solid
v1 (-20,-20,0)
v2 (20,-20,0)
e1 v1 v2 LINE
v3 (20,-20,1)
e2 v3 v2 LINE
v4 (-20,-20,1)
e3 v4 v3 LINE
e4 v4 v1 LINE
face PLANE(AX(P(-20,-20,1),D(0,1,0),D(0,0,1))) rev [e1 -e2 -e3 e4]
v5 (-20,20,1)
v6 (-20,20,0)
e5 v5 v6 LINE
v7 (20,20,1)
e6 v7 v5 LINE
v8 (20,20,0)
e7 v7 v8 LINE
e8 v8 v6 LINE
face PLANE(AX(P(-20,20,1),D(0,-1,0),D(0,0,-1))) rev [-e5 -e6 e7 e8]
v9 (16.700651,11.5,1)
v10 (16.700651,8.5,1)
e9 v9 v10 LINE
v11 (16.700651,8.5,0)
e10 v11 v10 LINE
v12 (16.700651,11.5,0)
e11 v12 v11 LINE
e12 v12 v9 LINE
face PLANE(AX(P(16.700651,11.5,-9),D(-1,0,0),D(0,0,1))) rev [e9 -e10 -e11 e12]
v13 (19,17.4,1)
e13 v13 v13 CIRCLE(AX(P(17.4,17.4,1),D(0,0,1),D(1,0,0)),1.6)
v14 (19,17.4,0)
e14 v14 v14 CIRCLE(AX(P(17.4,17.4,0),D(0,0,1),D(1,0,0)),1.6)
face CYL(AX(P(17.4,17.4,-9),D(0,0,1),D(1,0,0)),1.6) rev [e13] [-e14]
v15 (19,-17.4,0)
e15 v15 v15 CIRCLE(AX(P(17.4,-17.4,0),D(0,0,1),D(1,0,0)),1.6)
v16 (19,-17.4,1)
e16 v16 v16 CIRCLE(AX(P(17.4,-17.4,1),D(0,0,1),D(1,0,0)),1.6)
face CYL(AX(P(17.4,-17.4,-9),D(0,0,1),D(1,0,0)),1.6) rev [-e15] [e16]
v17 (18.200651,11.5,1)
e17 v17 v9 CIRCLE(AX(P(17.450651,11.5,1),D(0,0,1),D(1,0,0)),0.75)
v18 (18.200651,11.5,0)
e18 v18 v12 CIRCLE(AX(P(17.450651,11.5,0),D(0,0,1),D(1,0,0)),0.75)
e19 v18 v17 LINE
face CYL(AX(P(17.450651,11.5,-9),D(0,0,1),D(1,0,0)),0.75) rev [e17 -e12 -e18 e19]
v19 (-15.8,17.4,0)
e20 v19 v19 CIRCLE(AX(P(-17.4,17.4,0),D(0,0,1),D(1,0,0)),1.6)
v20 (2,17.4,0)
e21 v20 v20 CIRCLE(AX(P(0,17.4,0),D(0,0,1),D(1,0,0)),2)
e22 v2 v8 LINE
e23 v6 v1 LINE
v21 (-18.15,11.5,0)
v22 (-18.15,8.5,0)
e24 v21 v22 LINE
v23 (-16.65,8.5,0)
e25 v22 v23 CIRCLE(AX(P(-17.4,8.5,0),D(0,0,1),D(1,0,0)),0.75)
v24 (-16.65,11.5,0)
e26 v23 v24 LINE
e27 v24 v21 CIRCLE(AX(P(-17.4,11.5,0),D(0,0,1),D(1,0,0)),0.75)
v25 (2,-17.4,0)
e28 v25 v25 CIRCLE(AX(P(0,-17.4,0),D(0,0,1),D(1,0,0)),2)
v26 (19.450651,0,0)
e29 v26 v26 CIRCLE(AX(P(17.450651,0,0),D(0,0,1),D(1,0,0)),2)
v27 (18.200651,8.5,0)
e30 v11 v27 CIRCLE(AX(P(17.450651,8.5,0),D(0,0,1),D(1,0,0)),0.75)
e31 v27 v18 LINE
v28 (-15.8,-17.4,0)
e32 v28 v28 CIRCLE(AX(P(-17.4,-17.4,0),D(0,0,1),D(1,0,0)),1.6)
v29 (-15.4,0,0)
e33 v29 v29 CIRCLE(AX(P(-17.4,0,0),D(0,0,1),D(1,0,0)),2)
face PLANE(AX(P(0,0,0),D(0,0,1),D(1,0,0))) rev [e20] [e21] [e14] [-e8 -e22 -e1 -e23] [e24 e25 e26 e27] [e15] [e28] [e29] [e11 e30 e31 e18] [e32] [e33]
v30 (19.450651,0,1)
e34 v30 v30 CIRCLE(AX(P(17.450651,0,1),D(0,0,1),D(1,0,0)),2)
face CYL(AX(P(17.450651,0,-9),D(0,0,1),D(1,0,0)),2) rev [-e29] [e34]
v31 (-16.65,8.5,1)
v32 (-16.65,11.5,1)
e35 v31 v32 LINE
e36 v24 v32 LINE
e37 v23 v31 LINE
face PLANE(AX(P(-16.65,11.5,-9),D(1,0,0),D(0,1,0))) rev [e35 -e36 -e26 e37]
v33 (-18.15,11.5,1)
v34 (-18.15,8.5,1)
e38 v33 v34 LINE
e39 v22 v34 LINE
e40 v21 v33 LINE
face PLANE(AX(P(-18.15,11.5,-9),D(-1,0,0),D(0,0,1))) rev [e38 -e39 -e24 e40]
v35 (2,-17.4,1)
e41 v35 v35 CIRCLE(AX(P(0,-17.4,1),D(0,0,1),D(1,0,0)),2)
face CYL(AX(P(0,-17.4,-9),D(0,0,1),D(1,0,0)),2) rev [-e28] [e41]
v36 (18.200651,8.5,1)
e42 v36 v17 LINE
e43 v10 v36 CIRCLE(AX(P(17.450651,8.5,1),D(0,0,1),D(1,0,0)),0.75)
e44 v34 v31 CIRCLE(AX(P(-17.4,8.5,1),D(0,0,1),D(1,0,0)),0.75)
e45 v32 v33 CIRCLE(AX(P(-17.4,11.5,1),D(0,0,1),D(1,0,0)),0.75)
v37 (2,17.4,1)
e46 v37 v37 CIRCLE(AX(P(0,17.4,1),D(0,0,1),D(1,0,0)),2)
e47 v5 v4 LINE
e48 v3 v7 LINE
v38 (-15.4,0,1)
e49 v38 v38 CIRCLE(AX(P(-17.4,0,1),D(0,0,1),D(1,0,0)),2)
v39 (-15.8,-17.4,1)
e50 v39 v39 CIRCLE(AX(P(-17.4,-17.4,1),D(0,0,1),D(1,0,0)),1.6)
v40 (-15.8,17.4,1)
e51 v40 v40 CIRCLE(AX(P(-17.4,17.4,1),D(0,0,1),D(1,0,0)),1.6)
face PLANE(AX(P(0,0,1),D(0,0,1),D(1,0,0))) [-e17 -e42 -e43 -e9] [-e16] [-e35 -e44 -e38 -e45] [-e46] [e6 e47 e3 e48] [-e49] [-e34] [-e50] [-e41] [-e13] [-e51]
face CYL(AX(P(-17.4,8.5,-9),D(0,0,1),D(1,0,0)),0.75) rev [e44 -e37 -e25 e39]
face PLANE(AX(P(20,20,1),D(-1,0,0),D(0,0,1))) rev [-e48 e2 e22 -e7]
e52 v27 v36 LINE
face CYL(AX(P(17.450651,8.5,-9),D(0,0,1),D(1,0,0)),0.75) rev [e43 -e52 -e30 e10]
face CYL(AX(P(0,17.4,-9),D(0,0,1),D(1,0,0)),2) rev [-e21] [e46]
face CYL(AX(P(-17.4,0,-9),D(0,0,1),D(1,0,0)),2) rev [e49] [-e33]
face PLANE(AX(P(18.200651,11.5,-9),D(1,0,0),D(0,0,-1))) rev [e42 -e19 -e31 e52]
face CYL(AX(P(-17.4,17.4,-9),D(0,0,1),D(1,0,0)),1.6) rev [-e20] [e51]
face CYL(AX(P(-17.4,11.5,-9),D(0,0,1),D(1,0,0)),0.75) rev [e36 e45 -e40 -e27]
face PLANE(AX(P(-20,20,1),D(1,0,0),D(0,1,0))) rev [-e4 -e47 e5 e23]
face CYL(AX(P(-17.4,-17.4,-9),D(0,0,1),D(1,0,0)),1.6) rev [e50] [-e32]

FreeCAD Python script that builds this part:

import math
import FreeCAD as App
import Part
import Sketcher
from FreeCAD import Vector

doc = App.newDocument("Part")
body = doc.addObject("PartDesign::Body", "Body")

# Sketch on XY plane
sketch1 = body.newObject("Sketcher::SketchObject", "Sketch")
sketch1.AttachmentSupport = (doc.getObject("XY_Plane"), [""])
sketch1.MapMode = "FlatFace"
sketch1.addGeometry(Part.LineSegment(Vector(-20, 20, 0), Vector(-20, -20, 0)), False)
sketch1.addGeometry(Part.LineSegment(Vector(-20, -20, 0), Vector(20, -20, 0)), False)
sketch1.addGeometry(Part.LineSegment(Vector(20, -20, 0), Vector(20, 20, 0)), False)
sketch1.addGeometry(Part.LineSegment(Vector(20, 20, 0), Vector(-20, 20, 0)), False)
sketch1.addConstraint(Sketcher.Constraint("Coincident", 0, 2, 1, 1))
sketch1.addConstraint(Sketcher.Constraint("Coincident", 1, 2, 2, 1))
sketch1.addConstraint(Sketcher.Constraint("Coincident", 2, 2, 3, 1))
sketch1.addConstraint(Sketcher.Constraint("Coincident", 3, 2, 0, 1))
sketch1.addConstraint(Sketcher.Constraint("Vertical", 0))
sketch1.addConstraint(Sketcher.Constraint("Horizontal", 1))
sketch1.addConstraint(Sketcher.Constraint("Vertical", 2))
sketch1.addConstraint(Sketcher.Constraint("Horizontal", 3))
sketch1.addConstraint(Sketcher.Constraint("Symmetric", 0, 2, 2, 2, -1, 1))
sketch1.addConstraint(Sketcher.Constraint("Equal", 3, 0))
sketch1.addConstraint(Sketcher.Constraint("DistanceX", 1, 1, 1, 2, 40.0))
pad1 = body.newObject("PartDesign::Pad", "Pad")
pad1.Profile = sketch1
pad1.Length = 1

# Sketch on XY plane
sketch2 = body.newObject("Sketcher::SketchObject", "Sketch001")
sketch2.AttachmentSupport = (doc.getObject("XY_Plane"), [""])
sketch2.MapMode = "FlatFace"
sketch2.AttachmentOffset = App.Placement(Vector(0, 0, 1), App.Rotation())
sketch2.addGeometry(Part.Circle(Vector(-17.4, -17.4, 0), Vector(0, 0, 1), 1.6), False)
sketch2.addGeometry(Part.Circle(Vector(17.4, -17.4, 0), Vector(0, 0, 1), 1.6), False)
sketch2.addGeometry(Part.Circle(Vector(17.4, 17.4, 0), Vector(0, 0, 1), 1.6), False)
sketch2.addGeometry(Part.Circle(Vector(-17.4, 17.4, 0), Vector(0, 0, 1), 1.6), False)
sketch2.addGeometry(Part.Circle(Vector(0, 17.4, 0), Vector(0, 0, 1), 2), False)
sketch2.addGeometry(Part.Circle(Vector(17.5, 0, 0), Vector(0, 0, 1), 2), False)
sketch2.addGeometry(Part.Circle(Vector(0, -17.4, 0), Vector(0, 0, 1), 2), False)
sketch2.addGeometry(Part.Circle(Vector(-17.4, 0, 0), Vector(0, 0, 1), 2), False)
sketch2.addGeometry(Part.LineSegment(Vector(-16.6, 8.5, 0), Vector(-16.6, 11.5, 0)), False)
sketch2.addGeometry(Part.ArcOfCircle(Part.Circle(Vector(-17.4, 11.5, 0), Vector(0, 0, 1), 0.8), math.radians(0), math.radians(180)), False)
sketch2.addGeometry(Part.LineSegment(Vector(-18.1, 11.5, 0), Vector(-18.1, 8.5, 0)), False)
sketch2.addGeometry(Part.ArcOfCircle(Part.Circle(Vector(-17.4, 8.5, 0), Vector(0, 0, 1), 0.8), math.radians(180), math.radians(360)), False)
sketch2.addGeometry(Part.LineSegment(Vector(18.2, 8.5, 0), Vector(18.2, 11.5, 0)), False)
sketch2.addGeometry(Part.ArcOfCircle(Part.Circle(Vector(17.5, 11.5, 0), Vector(0, 0, 1), 0.8), math.radians(0), math.radians(180)), False)
sketch2.addGeometry(Part.LineSegment(Vector(16.7, 11.5, 0), Vector(16.7, 8.5, 0)), False)
sketch2.addGeometry(Part.ArcOfCircle(Part.Circle(Vector(17.5, 8.5, 0), Vector(0, 0, 1), 0.8), math.radians(180), math.radians(360)), False)
sketch2.addConstraint(Sketcher.Constraint("Tangent", 8, 2, 9, 1))
sketch2.addConstraint(Sketcher.Constraint("Tangent", 9, 2, 10, 1))
sketch2.addConstraint(Sketcher.Constraint("Tangent", 10, 2, 11, 1))
sketch2.addConstraint(Sketcher.Constraint("Tangent", 11, 2, 8, 1))
sketch2.addConstraint(Sketcher.Constraint("Tangent", 12, 2, 13, 1))
sketch2.addConstraint(Sketcher.Constraint("Tangent", 13, 2, 14, 1))
sketch2.addConstraint(Sketcher.Constraint("Tangent", 14, 2, 15, 1))
sketch2.addConstraint(Sketcher.Constraint("Tangent", 15, 2, 12, 1))
sketch2.addConstraint(Sketcher.Constraint("Vertical", 8))
sketch2.addConstraint(Sketcher.Constraint("Vertical", 10))
sketch2.addConstraint(Sketcher.Constraint("Vertical", 12))
sketch2.addConstraint(Sketcher.Constraint("Vertical", 14))
sketch2.addConstraint(Sketcher.Constraint("Equal", 0, 1))
sketch2.addConstraint(Sketcher.Constraint("Equal", 1, 2))
sketch2.addConstraint(Sketcher.Constraint("Equal", 2, 3))
sketch2.addConstraint(Sketcher.Constraint("Equal", 4, 5))
sketch2.addConstraint(Sketcher.Constraint("Equal", 5, 6))
sketch2.addConstraint(Sketcher.Constraint("Equal", 6, 7))
sketch2.addConstraint(Sketcher.Constraint("Equal", 11, 13))
sketch2.addConstraint(Sketcher.Constraint("Symmetric", 0, 3, 2, 3, -1, 1))
sketch2.addConstraint(Sketcher.Constraint("Symmetric", 1, 3, 3, 3, -1, 1))
sketch2.addConstraint(Sketcher.Constraint("Symmetric", 4, 3, 6, 3, -1, 1))
sketch2.addConstraint(Sketcher.Constraint("Symmetric", 0, 3, 1, 3, -2))
sketch2.addConstraint(Sketcher.Constraint("PointOnObject", 4, 3, -2))
sketch2.addConstraint(Sketcher.Constraint("PointOnObject", 5, 3, -1))
sketch2.addConstraint(Sketcher.Constraint("PointOnObject", 7, 3, -1))
sketch2.addConstraint(Sketcher.Constraint("Horizontal", 3, 3, 4, 3))
sketch2.addConstraint(Sketcher.Constraint("Horizontal", 9, 3, 13, 3))
sketch2.addConstraint(Sketcher.Constraint("Horizontal", 11, 3, 15, 3))
sketch2.addConstraint(Sketcher.Constraint("Vertical", 3, 3, 7, 3))
sketch2.addConstraint(Sketcher.Constraint("Vertical", 7, 3, 9, 3))
sketch2.addConstraint(Sketcher.Constraint("Vertical", 5, 3, 13, 3))
sketch2.addConstraint(Sketcher.Constraint("Diameter", 4, 4.0))
sketch2.addConstraint(Sketcher.Constraint("Diameter", 0, 3.2))
sketch2.addConstraint(Sketcher.Constraint("DistanceY", 8, 1, 8, 2, 3.0))
sketch2.addConstraint(Sketcher.Constraint("Radius", 9, 0.75))
sketch2.addConstraint(Sketcher.Constraint("DistanceX", 0, 3, -1, 1, 17.4))
sketch2.addConstraint(Sketcher.Constraint("DistanceY", 0, 3, -1, 1, 17.4))
sketch2.addConstraint(Sketcher.Constraint("DistanceY", -1, 1, 9, 3, 11.5))
sketch2.addConstraint(Sketcher.Constraint("DistanceX", -1, 1, 5, 3, 17.450651))
pocket1 = body.newObject("PartDesign::Pocket", "Pocket")
pocket1.Profile = sketch2
pocket1.Length = 10

doc.recompute()
